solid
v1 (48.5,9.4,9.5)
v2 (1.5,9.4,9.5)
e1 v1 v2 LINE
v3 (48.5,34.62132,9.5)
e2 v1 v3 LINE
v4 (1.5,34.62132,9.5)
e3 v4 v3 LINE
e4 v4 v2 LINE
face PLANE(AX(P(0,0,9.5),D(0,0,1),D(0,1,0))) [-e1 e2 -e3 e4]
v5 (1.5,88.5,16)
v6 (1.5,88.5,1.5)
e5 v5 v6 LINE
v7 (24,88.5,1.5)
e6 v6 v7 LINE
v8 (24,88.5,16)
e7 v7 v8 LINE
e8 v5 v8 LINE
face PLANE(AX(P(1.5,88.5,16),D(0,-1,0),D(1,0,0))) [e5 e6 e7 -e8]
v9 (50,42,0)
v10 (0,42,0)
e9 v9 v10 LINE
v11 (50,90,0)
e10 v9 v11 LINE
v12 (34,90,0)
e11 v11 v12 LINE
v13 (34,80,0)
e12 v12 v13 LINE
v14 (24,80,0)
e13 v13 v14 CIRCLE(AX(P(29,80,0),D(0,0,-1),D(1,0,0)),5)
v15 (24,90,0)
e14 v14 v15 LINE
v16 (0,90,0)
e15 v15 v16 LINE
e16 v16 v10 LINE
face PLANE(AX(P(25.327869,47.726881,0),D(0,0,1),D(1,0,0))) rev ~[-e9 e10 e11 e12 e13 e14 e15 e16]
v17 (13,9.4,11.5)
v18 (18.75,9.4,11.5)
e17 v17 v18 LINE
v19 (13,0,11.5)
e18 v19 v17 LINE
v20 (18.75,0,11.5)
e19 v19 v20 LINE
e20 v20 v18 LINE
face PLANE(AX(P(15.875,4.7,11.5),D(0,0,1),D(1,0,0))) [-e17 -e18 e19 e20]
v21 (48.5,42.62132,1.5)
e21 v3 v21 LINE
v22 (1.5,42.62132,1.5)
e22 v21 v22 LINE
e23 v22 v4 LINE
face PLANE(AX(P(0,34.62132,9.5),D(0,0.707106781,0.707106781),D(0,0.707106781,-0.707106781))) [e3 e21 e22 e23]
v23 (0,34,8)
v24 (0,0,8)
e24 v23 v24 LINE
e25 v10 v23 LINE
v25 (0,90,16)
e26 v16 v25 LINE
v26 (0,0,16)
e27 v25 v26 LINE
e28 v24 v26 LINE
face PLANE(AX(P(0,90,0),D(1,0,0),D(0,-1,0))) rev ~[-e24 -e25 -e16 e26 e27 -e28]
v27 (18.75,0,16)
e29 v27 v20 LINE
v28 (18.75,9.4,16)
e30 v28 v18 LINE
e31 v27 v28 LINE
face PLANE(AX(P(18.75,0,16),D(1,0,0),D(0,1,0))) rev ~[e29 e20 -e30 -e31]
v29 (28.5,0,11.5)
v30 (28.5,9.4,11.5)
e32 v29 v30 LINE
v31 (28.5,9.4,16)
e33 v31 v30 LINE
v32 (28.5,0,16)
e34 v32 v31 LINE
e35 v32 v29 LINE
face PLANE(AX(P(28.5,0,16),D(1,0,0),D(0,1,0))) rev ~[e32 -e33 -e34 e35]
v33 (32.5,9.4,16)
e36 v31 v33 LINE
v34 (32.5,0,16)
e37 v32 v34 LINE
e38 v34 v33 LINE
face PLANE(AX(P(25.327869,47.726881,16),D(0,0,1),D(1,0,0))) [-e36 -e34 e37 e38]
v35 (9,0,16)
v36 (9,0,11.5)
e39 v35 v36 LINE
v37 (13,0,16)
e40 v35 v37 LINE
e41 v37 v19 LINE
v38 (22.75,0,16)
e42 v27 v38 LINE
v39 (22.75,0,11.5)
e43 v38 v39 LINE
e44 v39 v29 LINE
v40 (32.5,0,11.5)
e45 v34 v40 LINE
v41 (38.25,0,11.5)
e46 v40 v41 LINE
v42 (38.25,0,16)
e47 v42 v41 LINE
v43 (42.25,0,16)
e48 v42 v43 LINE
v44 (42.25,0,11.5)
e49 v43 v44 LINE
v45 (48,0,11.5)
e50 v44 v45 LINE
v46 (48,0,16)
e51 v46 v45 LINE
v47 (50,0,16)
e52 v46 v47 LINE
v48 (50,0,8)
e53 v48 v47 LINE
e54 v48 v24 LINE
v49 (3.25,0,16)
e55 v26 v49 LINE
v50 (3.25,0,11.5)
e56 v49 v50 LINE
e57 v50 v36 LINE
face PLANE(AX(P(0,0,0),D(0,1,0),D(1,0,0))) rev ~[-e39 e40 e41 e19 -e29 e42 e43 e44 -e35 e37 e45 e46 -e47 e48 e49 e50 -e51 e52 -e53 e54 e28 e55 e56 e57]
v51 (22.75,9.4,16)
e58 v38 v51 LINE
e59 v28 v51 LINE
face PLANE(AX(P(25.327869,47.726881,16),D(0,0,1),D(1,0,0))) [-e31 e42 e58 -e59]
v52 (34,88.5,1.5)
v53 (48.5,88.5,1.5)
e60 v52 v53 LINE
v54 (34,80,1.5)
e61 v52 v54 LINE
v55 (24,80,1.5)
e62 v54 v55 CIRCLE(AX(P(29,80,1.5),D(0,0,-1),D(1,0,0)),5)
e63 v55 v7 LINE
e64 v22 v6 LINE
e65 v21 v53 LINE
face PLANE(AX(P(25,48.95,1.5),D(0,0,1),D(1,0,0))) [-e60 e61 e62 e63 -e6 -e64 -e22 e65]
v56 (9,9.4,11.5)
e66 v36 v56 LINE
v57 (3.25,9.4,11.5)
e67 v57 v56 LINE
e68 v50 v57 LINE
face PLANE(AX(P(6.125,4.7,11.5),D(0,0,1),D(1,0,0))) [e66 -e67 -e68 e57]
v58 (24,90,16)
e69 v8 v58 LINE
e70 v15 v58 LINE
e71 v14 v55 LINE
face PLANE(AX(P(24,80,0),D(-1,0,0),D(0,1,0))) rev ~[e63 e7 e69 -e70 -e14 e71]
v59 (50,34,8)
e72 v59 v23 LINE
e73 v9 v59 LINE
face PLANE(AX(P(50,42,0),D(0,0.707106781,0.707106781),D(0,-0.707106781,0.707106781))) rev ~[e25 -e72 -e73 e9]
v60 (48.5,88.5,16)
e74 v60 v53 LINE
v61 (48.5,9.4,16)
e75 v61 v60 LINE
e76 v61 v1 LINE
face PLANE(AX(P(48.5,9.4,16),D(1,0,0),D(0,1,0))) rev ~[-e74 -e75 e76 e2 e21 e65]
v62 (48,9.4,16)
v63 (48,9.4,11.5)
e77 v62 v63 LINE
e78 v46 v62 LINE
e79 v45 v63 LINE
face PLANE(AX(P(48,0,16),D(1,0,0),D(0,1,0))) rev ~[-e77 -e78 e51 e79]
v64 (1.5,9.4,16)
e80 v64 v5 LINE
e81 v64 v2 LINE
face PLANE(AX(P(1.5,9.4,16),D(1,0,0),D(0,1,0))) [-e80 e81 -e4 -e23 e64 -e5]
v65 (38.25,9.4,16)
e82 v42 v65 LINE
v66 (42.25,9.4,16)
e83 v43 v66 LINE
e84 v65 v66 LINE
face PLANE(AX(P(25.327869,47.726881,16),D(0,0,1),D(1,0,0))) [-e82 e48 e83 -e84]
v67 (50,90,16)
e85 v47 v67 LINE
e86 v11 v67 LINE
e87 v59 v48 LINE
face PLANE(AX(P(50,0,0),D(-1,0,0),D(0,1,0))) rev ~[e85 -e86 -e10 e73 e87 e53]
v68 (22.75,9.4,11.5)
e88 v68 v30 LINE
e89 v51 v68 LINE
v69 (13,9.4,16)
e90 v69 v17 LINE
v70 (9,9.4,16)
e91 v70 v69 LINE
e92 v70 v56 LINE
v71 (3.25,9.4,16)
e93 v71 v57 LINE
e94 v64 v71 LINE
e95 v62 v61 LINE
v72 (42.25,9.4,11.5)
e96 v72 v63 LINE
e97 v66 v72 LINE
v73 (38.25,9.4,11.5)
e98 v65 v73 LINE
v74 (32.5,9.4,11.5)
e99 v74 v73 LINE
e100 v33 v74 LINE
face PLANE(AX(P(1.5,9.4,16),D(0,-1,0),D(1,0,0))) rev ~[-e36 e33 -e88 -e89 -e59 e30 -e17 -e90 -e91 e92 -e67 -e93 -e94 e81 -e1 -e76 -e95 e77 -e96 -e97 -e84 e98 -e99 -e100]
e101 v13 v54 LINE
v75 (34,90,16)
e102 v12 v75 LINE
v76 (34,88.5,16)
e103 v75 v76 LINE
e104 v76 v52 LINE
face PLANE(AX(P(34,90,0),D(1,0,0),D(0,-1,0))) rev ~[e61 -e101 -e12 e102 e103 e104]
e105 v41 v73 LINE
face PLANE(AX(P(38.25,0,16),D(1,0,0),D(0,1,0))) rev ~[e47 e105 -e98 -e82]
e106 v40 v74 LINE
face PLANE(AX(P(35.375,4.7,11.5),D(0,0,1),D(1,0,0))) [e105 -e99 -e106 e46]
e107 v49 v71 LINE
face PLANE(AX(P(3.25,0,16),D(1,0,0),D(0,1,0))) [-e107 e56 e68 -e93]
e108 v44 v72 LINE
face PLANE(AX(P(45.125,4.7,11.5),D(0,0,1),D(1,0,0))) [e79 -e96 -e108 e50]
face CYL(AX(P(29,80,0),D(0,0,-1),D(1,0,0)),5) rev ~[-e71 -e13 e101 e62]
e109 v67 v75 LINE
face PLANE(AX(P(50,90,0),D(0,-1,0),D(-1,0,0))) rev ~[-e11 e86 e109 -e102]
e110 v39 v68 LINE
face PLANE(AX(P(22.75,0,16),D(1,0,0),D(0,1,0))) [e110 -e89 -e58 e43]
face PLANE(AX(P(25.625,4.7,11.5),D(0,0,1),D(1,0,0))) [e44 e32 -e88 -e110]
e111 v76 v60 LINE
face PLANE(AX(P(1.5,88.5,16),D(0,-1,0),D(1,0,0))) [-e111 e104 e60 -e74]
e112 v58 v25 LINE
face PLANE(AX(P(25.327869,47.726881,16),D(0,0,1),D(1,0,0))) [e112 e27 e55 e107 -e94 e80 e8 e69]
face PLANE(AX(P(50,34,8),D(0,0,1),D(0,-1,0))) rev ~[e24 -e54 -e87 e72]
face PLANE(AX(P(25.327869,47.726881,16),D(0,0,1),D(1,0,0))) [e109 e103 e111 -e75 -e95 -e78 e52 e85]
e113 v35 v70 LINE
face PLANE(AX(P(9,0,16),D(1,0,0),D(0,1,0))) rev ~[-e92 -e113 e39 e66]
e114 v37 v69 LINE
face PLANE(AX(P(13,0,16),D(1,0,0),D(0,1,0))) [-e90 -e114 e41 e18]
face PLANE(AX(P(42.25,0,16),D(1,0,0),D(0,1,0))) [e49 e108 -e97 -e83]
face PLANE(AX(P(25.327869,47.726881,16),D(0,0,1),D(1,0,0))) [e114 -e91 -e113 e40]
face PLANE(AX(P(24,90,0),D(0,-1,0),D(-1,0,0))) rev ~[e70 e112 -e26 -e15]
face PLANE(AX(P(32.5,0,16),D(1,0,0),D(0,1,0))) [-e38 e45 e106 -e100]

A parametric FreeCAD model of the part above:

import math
import FreeCAD as App
import Part
import Sketcher
Q = App.Units.Quantity

doc = App.newDocument("Part")
body = doc.addObject("PartDesign::Body", "Body")

# Sketch on XY plane
sketch1 = body.newObject("Sketcher::SketchObject", "Sketch")
sketch1.AttachmentSupport = (doc.getObject("XY_Plane"), [""])
sketch1.MapMode = "FlatFace"
sketch1.addGeometry(Part.LineSegment(App.Vector(0, 90, 0), App.Vector(0, 0, 0)), False)
sketch1.addGeometry(Part.LineSegment(App.Vector(0, 0, 0), App.Vector(50, 0, 0)), False)
sketch1.addGeometry(Part.LineSegment(App.Vector(50, 0, 0), App.Vector(50, 90, 0)), False)
sketch1.addGeometry(Part.LineSegment(App.Vector(50, 90, 0), App.Vector(34, 90, 0)), False)
sketch1.addGeometry(Part.LineSegment(App.Vector(34, 90, 0), App.Vector(34, 80, 0)), False)
sketch1.addGeometry(Part.ArcOfCircle(Part.Circle(App.Vector(29, 80, 0), App.Vector(0, 0, 1), 5), math.radians(180), math.radians(360)), False)
sketch1.addGeometry(Part.LineSegment(App.Vector(24, 80, 0), App.Vector(24, 90, 0)), False)
sketch1.addGeometry(Part.LineSegment(App.Vector(24, 90, 0), App.Vector(0, 90, 0)), False)
sketch1.addConstraint(Sketcher.Constraint("Coincident", 0, 2, 1, 1))
sketch1.addConstraint(Sketcher.Constraint("Coincident", 1, 2, 2, 1))
sketch1.addConstraint(Sketcher.Constraint("Coincident", 2, 2, 3, 1))
sketch1.addConstraint(Sketcher.Constraint("Coincident", 3, 2, 4, 1))
sketch1.addConstraint(Sketcher.Constraint("Tangent", 4, 2, 5, 2))
sketch1.addConstraint(Sketcher.Constraint("Tangent", 5, 1, 6, 1))
sketch1.addConstraint(Sketcher.Constraint("Coincident", 6, 2, 7, 1))
sketch1.addConstraint(Sketcher.Constraint("Coincident", 7, 2, 0, 1))
sketch1.addConstraint(Sketcher.Constraint("Vertical", 0))
sketch1.addConstraint(Sketcher.Constraint("Horizontal", 1))
sketch1.addConstraint(Sketcher.Constraint("Vertical", 2))
sketch1.addConstraint(Sketcher.Constraint("Horizontal", 3))
sketch1.addConstraint(Sketcher.Constraint("Vertical", 4))
sketch1.addConstraint(Sketcher.Constraint("Vertical", 6))
sketch1.addConstraint(Sketcher.Constraint("Horizontal", 7))
sketch1.addConstraint(Sketcher.Constraint("Coincident", 0, 2, -1, 1))
sketch1.addConstraint(Sketcher.Constraint("Horizontal", 3, 2, 6, 2))
sketch1.addConstraint(Sketcher.Constraint("Radius", 5, Q("5 mm")))
sketch1.addConstraint(Sketcher.Constraint("DistanceX", 1, 1, 1, 2, Q("50 mm")))
sketch1.addConstraint(Sketcher.Constraint("DistanceX", 3, 2, 3, 1, Q("16 mm")))
sketch1.addConstraint(Sketcher.Constraint("DistanceY", 0, 2, 0, 1, Q("90 mm")))
sketch1.addConstraint(Sketcher.Constraint("DistanceY", 4, 2, 4, 1, Q("10 mm")))
pad1 = body.newObject("PartDesign::Pad", "Pad")
pad1.Profile = sketch1
pad1.Length = 16

# Sketch on XY plane
sketch2 = body.newObject("Sketcher::SketchObject", "Sketch001")
sketch2.AttachmentSupport = (doc.getObject("XY_Plane"), [""])
sketch2.MapMode = "FlatFace"
sketch2.AttachmentOffset = App.Placement(App.Vector(0, 0, 16), App.Rotation())
sketch2.addGeometry(Part.LineSegment(App.Vector(2, 88, 0), App.Vector(2, 9, 0)), False)
sketch2.addGeometry(Part.LineSegment(App.Vector(2, 9, 0), App.Vector(48, 9, 0)), False)
sketch2.addGeometry(Part.LineSegment(App.Vector(48, 9, 0), App.Vector(48, 88, 0)), False)
sketch2.addGeometry(Part.LineSegment(App.Vector(48, 88, 0), App.Vector(2, 88, 0)), False)
sketch2.addConstraint(Sketcher.Constraint("Coincident", 0, 2, 1, 1))
sketch2.addConstraint(Sketcher.Constraint("Coincident", 1, 2, 2, 1))
sketch2.addConstraint(Sketcher.Constraint("Coincident", 2, 2, 3, 1))
sketch2.addConstraint(Sketcher.Constraint("Coincident", 3, 2, 0, 1))
sketch2.addConstraint(Sketcher.Constraint("Vertical", 0))
sketch2.addConstraint(Sketcher.Constraint("Horizontal", 1))
sketch2.addConstraint(Sketcher.Constraint("Vertical", 2))
sketch2.addConstraint(Sketcher.Constraint("Horizontal", 3))
sketch2.addConstraint(Sketcher.Constraint("DistanceX", 1, 1, 1, 2, Q("47 mm")))
sketch2.addConstraint(Sketcher.Constraint("DistanceY", 0, 2, 0, 1, Q("79.1 mm")))
sketch2.addConstraint(Sketcher.Constraint("DistanceX", -1, 1, 0, 2, Q("1.5 mm")))
sketch2.addConstraint(Sketcher.Constraint("DistanceY", -1, 1, 0, 2, Q("9.4 mm")))
pocket1 = body.newObject("PartDesign::Pocket", "Pocket")
pocket1.Profile = sketch2
pocket1.Length = 14.5

# Sketch on XY plane
sketch3 = body.newObject("Sketcher::SketchObject", "Sketch002")
sketch3.AttachmentSupport = (doc.getObject("XY_Plane"), [""])
sketch3.MapMode = "FlatFace"
sketch3.AttachmentOffset = App.Placement(App.Vector(0, 0, 16), App.Rotation())
sketch3.addGeometry(Part.LineSegment(App.Vector(42, 9, 0), App.Vector(42, 0, 0)), False)
sketch3.addGeometry(Part.LineSegment(App.Vector(42, 0, 0), App.Vector(48, 0, 0)), False)
sketch3.addGeometry(Part.LineSegment(App.Vector(48, 0, 0), App.Vector(48, 9, 0)), False)
sketch3.addGeometry(Part.LineSegment(App.Vector(48, 9, 0), App.Vector(42, 9, 0)), False)
sketch3.addGeometry(Part.LineSegment(App.Vector(32, 9, 0), App.Vector(32, 0, 0)), False)
sketch3.addGeometry(Part.LineSegment(App.Vector(32, 0, 0), App.Vector(38, 0, 0)), False)
sketch3.addGeometry(Part.LineSegment(App.Vector(38, 0, 0), App.Vector(38, 9, 0)), False)
sketch3.addGeometry(Part.LineSegment(App.Vector(38, 9, 0), App.Vector(32, 9, 0)), False)
sketch3.addGeometry(Part.LineSegment(App.Vector(23, 9, 0), App.Vector(23, 0, 0)), False)
sketch3.addGeometry(Part.LineSegment(App.Vector(23, 0, 0), App.Vector(28, 0, 0)), False)
sketch3.addGeometry(Part.LineSegment(App.Vector(28, 0, 0), App.Vector(28, 9, 0)), False)
sketch3.addGeometry(Part.LineSegment(App.Vector(28, 9, 0), App.Vector(23, 9, 0)), False)
sketch3.addGeometry(Part.LineSegment(App.Vector(13, 9, 0), App.Vector(13, 0, 0)), False)
sketch3.addGeometry(Part.LineSegment(App.Vector(13, 0, 0), App.Vector(19, 0, 0)), False)
sketch3.addGeometry(Part.LineSegment(App.Vector(19, 0, 0), App.Vector(19, 9, 0)), False)
sketch3.addGeometry(Part.LineSegment(App.Vector(19, 9, 0), App.Vector(13, 9, 0)), False)
sketch3.addGeometry(Part.LineSegment(App.Vector(3, 9, 0), App.Vector(3, 0, 0)), False)
sketch3.addGeometry(Part.LineSegment(App.Vector(3, 0, 0), App.Vector(9, 0, 0)), False)
sketch3.addGeometry(Part.LineSegment(App.Vector(9, 0, 0), App.Vector(9, 9, 0)), False)
sketch3.addGeometry(Part.LineSegment(App.Vector(9, 9, 0), App.Vector(3, 9, 0)), False)
sketch3.addConstraint(Sketcher.Constraint("Coincident", 0, 2, 1, 1))
sketch3.addConstraint(Sketcher.Constraint("Coincident", 1, 2, 2, 1))
sketch3.addConstraint(Sketcher.Constraint("Coincident", 2, 2, 3, 1))
sketch3.addConstraint(Sketcher.Constraint("Coincident", 3, 2, 0, 1))
sketch3.addConstraint(Sketcher.Constraint("Coincident", 4, 2, 5, 1))
sketch3.addConstraint(Sketcher.Constraint("Coincident", 5, 2, 6, 1))
sketch3.addConstraint(Sketcher.Constraint("Coincident", 6, 2, 7, 1))
sketch3.addConstraint(Sketcher.Constraint("Coincident", 7, 2, 4, 1))
sketch3.addConstraint(Sketcher.Constraint("Coincident", 8, 2, 9, 1))
sketch3.addConstraint(Sketcher.Constraint("Coincident", 9, 2, 10, 1))
sketch3.addConstraint(Sketcher.Constraint("Coincident", 10, 2, 11, 1))
sketch3.addConstraint(Sketcher.Constraint("Coincident", 11, 2, 8, 1))
sketch3.addConstraint(Sketcher.Constraint("Coincident", 12, 2, 13, 1))
sketch3.addConstraint(Sketcher.Constraint("Coincident", 13, 2, 14, 1))
sketch3.addConstraint(Sketcher.Constraint("Coincident", 14, 2, 15, 1))
sketch3.addConstraint(Sketcher.Constraint("Coincident", 15, 2, 12, 1))
sketch3.addConstraint(Sketcher.Constraint("Coincident", 16, 2, 17, 1))
sketch3.addConstraint(Sketcher.Constraint("Coincident", 17, 2, 18, 1))
sketch3.addConstraint(Sketcher.Constraint("Coincident", 18, 2, 19, 1))
sketch3.addConstraint(Sketcher.Constraint("Coincident", 19, 2, 16, 1))
sketch3.addConstraint(Sketcher.Constraint("Vertical", 0))
sketch3.addConstraint(Sketcher.Constraint("Horizontal", 1))
sketch3.addConstraint(Sketcher.Constraint("Vertical", 2))
sketch3.addConstraint(Sketcher.Constraint("Horizontal", 3))
sketch3.addConstraint(Sketcher.Constraint("Vertical", 4))
sketch3.addConstraint(Sketcher.Constraint("Horizontal", 5))
sketch3.addConstraint(Sketcher.Constraint("Vertical", 6))
sketch3.addConstraint(Sketcher.Constraint("Horizontal", 7))
sketch3.addConstraint(Sketcher.Constraint("Vertical", 8))
sketch3.addConstraint(Sketcher.Constraint("Horizontal", 9))
sketch3.addConstraint(Sketcher.Constraint("Vertical", 10))
sketch3.addConstraint(Sketcher.Constraint("Horizontal", 11))
sketch3.addConstraint(Sketcher.Constraint("Vertical", 12))
sketch3.addConstraint(Sketcher.Constraint("Horizontal", 13))
sketch3.addConstraint(Sketcher.Constraint("Vertical", 14))
sketch3.addConstraint(Sketcher.Constraint("Horizontal", 15))
sketch3.addConstraint(Sketcher.Constraint("Vertical", 16))
sketch3.addConstraint(Sketcher.Constraint("Horizontal", 17))
sketch3.addConstraint(Sketcher.Constraint("Vertical", 18))
sketch3.addConstraint(Sketcher.Constraint("Horizontal", 19))
sketch3.addConstraint(Sketcher.Constraint("PointOnObject", 0, 2, -1))
sketch3.addConstraint(Sketcher.Constraint("PointOnObject", 4, 2, -1))
sketch3.addConstraint(Sketcher.Constraint("PointOnObject", 8, 2, -1))
sketch3.addConstraint(Sketcher.Constraint("PointOnObject", 12, 2, -1))
sketch3.addConstraint(Sketcher.Constraint("PointOnObject", 16, 2, -1))
sketch3.addConstraint(Sketcher.Constraint("Horizontal", 3, 2, 6, 2))
sketch3.addConstraint(Sketcher.Constraint("Horizontal", 7, 2, 10, 2))
sketch3.addConstraint(Sketcher.Constraint("Horizontal", 11, 2, 14, 2))
sketch3.addConstraint(Sketcher.Constraint("Horizontal", 15, 2, 18, 2))
sketch3.addConstraint(Sketcher.Constraint("Equal", 3, 5))
sketch3.addConstraint(Sketcher.Constraint("Equal", 7, 9))
sketch3.addConstraint(Sketcher.Constraint("Equal", 11, 13))
sketch3.addConstraint(Sketcher.Constraint("Equal", 15, 17))
sketch3.addConstraint(Sketcher.Constraint("DistanceY", 0, 2, 0, 1, Q("9.4 mm")))
sketch3.addConstraint(Sketcher.Constraint("DistanceX", -1, 1, 1, 2, Q("48 mm")))
sketch3.addConstraint(Sketcher.Constraint("DistanceX", -1, 1, 12, 2, Q("13 mm")))
sketch3.addConstraint(Sketcher.Constraint("DistanceX", -1, 1, 17, 2, Q("9 mm")))
sketch3.addConstraint(Sketcher.Constraint("DistanceX", 5, 2, 0, 2, Q("4 mm")))
sketch3.addConstraint(Sketcher.Constraint("DistanceX", 9, 2, 4, 2, Q("4 mm")))
sketch3.addConstraint(Sketcher.Constraint("DistanceX", 13, 2, 8, 2, Q("4 mm")))
pocket2 = body.newObject("PartDesign::Pocket", "Pocket001")
pocket2.Profile = sketch3
pocket2.Length = 4.5

# Sketch on YZ plane
sketch4 = body.newObject("Sketcher::SketchObject", "Sketch003")
sketch4.AttachmentSupport = (doc.getObject("YZ_Plane"), [""])
sketch4.MapMode = "FlatFace"
sketch4.AttachmentOffset = App.Placement(App.Vector(0, 0, 50), App.Rotation())
sketch4.addGeometry(Part.LineSegment(App.Vector(0, 8, 0), App.Vector(0, 0, 0)), False)
sketch4.addGeometry(Part.LineSegment(App.Vector(0, 0, 0), App.Vector(42, 0, 0)), False)
sketch4.addGeometry(Part.LineSegment(App.Vector(42, 0, 0), App.Vector(34, 8, 0)), False)
sketch4.addGeometry(Part.LineSegment(App.Vector(34, 8, 0), App.Vector(0, 8, 0)), False)
sketch4.addConstraint(Sketcher.Constraint("Coincident", 0, 2, 1, 1))
sketch4.addConstraint(Sketcher.Constraint("Coincident", 1, 2, 2, 1))
sketch4.addConstraint(Sketcher.Constraint("Coincident", 2, 2, 3, 1))
sketch4.addConstraint(Sketcher.Constraint("Coincident", 3, 2, 0, 1))
sketch4.addConstraint(Sketcher.Constraint("Vertical", 0))
sketch4.addConstraint(Sketcher.Constraint("Horizontal", 1))
sketch4.addConstraint(Sketcher.Constraint("Horizontal", 3))
sketch4.addConstraint(Sketcher.Constraint("Coincident", 0, 2, -1, 1))
sketch4.addConstraint(Sketcher.Constraint("DistanceX", 1, 1, 1, 2, Q("42 mm")))
sketch4.addConstraint(Sketcher.Constraint("DistanceX", 3, 2, 3, 1, Q("34 mm")))
sketch4.addConstraint(Sketcher.Constraint("DistanceY", 0, 2, 0, 1, Q("8 mm")))
pocket3 = body.newObject("PartDesign::Pocket", "Pocket002")
pocket3.Profile = sketch4
pocket3.Type = "ThroughAll"

# Sketch on YZ plane
sketch5 = body.newObject("Sketcher::SketchObject", "Sketch004")
sketch5.AttachmentSupport = (doc.getObject("YZ_Plane"), [""])
sketch5.MapMode = "FlatFace"
sketch5.addGeometry(Part.LineSegment(App.Vector(42, 0, 0), App.Vector(34, 8, 0)), False)
sketch5.addGeometry(Part.LineSegment(App.Vector(34, 8, 0), App.Vector(0, 8, 0)), False)
sketch5.addGeometry(Part.LineSegment(App.Vector(0, 8, 0), App.Vector(0, 9.5, 0)), False)
sketch5.addGeometry(Part.LineSegment(App.Vector(0, 9.5, 0), App.Vector(34.6, 9.5, 0)), False)
sketch5.addGeometry(Part.LineSegment(App.Vector(34.6, 9.5, 0), App.Vector(44.1, 0, 0)), False)
sketch5.addGeometry(Part.LineSegment(App.Vector(44.1, 0, 0), App.Vector(42, 0, 0)), False)
sketch5.addConstraint(Sketcher.Constraint("Coincident", 0, 2, 1, 1))
sketch5.addConstraint(Sketcher.Constraint("Coincident", 1, 2, 2, 1))
sketch5.addConstraint(Sketcher.Constraint("Coincident", 2, 2, 3, 1))
sketch5.addConstraint(Sketcher.Constraint("Coincident", 3, 2, 4, 1))
sketch5.addConstraint(Sketcher.Constraint("Coincident", 4, 2, 5, 1))
sketch5.addConstraint(Sketcher.Constraint("Coincident", 5, 2, 0, 1))
sketch5.addConstraint(Sketcher.Constraint("Horizontal", 1))
sketch5.addConstraint(Sketcher.Constraint("Vertical", 2))
sketch5.addConstraint(Sketcher.Constraint("Horizontal", 3))
sketch5.addConstraint(Sketcher.Constraint("Horizontal", 5))
sketch5.addConstraint(Sketcher.Constraint("PointOnObject", 1, 2, -2))
sketch5.addConstraint(Sketcher.Constraint("PointOnObject", 4, 2, -1))
sketch5.addConstraint(Sketcher.Constraint("Parallel", 0, 4))
sketch5.addConstraint(Sketcher.Constraint("DistanceX", 1, 2, 1, 1, Q("34 mm")))
sketch5.addConstraint(Sketcher.Constraint("Angle", 0, Q("135 deg")))
sketch5.addConstraint(Sketcher.Constraint("DistanceY", 2, 1, 2, 2, Q("1.5 mm")))
sketch5.addConstraint(Sketcher.Constraint("DistanceY", -1, 1, 0, 2, Q("8 mm")))
sketch5.addConstraint(Sketcher.Constraint("DistanceX", 3, 1, 3, 2, Q("34.62132 mm")))
pad2 = body.newObject("PartDesign::Pad", "Pad001")
pad2.Profile = sketch5
pad2.Length = 48.5

doc.recompute()
